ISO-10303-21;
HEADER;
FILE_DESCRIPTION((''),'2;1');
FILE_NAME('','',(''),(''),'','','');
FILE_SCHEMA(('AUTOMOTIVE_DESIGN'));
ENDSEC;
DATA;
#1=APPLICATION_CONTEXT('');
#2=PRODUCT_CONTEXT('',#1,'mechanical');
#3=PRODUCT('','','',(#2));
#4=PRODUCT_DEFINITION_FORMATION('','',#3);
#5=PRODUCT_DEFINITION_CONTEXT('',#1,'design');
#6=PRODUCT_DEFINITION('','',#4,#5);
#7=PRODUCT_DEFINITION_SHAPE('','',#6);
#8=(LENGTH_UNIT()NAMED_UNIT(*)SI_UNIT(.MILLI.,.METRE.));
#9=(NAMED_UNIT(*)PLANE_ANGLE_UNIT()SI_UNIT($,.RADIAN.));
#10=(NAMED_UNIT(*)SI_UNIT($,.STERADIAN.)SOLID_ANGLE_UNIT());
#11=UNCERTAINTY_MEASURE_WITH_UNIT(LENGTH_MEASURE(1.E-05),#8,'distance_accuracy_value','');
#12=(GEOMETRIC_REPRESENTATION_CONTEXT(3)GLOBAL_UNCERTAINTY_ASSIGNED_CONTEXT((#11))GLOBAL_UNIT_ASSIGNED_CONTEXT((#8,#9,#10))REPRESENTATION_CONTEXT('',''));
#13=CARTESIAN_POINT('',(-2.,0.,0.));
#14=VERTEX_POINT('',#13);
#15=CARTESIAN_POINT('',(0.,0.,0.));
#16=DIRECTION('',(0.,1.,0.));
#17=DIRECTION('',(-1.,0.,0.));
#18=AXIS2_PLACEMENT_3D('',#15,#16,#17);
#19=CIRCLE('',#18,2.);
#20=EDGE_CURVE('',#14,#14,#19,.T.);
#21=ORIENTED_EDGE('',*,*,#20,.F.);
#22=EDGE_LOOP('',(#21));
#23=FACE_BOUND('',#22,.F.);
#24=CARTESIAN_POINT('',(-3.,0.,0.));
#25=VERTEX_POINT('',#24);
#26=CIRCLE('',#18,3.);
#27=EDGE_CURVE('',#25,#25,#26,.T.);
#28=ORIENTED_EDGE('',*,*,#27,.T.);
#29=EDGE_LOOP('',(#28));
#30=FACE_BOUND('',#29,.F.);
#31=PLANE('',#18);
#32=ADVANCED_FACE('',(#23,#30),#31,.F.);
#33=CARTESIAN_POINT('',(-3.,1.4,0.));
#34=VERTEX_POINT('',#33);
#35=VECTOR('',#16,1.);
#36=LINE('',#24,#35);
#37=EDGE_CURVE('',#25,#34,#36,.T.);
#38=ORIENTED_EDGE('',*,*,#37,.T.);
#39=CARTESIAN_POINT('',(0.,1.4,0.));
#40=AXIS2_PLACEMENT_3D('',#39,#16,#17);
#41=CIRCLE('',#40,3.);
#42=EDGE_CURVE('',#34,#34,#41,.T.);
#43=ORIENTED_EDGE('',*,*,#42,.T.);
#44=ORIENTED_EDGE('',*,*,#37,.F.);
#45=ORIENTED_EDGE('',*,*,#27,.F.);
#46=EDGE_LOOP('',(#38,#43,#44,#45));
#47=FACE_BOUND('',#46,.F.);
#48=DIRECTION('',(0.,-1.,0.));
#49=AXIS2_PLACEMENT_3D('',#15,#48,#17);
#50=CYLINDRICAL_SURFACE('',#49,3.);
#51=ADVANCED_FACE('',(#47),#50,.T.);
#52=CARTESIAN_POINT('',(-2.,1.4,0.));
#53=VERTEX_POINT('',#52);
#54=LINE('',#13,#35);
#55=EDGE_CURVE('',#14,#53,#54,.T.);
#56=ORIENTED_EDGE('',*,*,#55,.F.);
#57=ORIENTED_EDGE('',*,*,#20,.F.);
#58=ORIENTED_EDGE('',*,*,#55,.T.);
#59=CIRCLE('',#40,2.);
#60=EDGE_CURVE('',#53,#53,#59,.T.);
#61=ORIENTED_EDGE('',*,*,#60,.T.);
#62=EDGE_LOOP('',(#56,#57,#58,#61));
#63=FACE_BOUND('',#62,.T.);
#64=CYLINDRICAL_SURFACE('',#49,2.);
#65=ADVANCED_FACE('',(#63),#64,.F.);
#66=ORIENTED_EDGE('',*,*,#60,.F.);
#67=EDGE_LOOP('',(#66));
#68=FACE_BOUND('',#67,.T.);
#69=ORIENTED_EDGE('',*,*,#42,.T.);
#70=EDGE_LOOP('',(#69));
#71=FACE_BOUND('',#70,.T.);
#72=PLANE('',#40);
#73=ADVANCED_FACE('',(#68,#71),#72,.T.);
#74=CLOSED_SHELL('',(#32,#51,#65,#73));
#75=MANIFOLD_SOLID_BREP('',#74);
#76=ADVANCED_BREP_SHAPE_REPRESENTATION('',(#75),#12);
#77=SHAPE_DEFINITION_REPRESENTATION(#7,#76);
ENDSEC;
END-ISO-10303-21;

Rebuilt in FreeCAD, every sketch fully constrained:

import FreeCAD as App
import Part
import Sketcher
from FreeCAD import Vector

doc = App.newDocument("Part")
body = doc.addObject("PartDesign::Body", "Body")

# Sketch on XZ plane
sketch1 = body.newObject("Sketcher::SketchObject", "Sketch")
sketch1.AttachmentSupport = (doc.getObject("XZ_Plane"), [""])
sketch1.MapMode = "FlatFace"
sketch1.addGeometry([
    Part.Circle(Vector(0, 0, 0), Vector(0, 0, 1), 3),
    Part.Circle(Vector(0, 0, 0), Vector(0, 0, 1), 2),
], False)
sketch1.addConstraint([
    Sketcher.Constraint("Coincident", 0, 3, -1, 1),
    Sketcher.Constraint("Coincident", 1, 3, -1, 1),
    Sketcher.Constraint("Diameter", 0, 6.0),
    Sketcher.Constraint("Diameter", 1, 4.0),
])
pad1 = body.newObject("PartDesign::Pad", "Pad")
pad1.Profile = sketch1
pad1.Length = 1.4
pad1.Reversed = True

doc.recompute()
